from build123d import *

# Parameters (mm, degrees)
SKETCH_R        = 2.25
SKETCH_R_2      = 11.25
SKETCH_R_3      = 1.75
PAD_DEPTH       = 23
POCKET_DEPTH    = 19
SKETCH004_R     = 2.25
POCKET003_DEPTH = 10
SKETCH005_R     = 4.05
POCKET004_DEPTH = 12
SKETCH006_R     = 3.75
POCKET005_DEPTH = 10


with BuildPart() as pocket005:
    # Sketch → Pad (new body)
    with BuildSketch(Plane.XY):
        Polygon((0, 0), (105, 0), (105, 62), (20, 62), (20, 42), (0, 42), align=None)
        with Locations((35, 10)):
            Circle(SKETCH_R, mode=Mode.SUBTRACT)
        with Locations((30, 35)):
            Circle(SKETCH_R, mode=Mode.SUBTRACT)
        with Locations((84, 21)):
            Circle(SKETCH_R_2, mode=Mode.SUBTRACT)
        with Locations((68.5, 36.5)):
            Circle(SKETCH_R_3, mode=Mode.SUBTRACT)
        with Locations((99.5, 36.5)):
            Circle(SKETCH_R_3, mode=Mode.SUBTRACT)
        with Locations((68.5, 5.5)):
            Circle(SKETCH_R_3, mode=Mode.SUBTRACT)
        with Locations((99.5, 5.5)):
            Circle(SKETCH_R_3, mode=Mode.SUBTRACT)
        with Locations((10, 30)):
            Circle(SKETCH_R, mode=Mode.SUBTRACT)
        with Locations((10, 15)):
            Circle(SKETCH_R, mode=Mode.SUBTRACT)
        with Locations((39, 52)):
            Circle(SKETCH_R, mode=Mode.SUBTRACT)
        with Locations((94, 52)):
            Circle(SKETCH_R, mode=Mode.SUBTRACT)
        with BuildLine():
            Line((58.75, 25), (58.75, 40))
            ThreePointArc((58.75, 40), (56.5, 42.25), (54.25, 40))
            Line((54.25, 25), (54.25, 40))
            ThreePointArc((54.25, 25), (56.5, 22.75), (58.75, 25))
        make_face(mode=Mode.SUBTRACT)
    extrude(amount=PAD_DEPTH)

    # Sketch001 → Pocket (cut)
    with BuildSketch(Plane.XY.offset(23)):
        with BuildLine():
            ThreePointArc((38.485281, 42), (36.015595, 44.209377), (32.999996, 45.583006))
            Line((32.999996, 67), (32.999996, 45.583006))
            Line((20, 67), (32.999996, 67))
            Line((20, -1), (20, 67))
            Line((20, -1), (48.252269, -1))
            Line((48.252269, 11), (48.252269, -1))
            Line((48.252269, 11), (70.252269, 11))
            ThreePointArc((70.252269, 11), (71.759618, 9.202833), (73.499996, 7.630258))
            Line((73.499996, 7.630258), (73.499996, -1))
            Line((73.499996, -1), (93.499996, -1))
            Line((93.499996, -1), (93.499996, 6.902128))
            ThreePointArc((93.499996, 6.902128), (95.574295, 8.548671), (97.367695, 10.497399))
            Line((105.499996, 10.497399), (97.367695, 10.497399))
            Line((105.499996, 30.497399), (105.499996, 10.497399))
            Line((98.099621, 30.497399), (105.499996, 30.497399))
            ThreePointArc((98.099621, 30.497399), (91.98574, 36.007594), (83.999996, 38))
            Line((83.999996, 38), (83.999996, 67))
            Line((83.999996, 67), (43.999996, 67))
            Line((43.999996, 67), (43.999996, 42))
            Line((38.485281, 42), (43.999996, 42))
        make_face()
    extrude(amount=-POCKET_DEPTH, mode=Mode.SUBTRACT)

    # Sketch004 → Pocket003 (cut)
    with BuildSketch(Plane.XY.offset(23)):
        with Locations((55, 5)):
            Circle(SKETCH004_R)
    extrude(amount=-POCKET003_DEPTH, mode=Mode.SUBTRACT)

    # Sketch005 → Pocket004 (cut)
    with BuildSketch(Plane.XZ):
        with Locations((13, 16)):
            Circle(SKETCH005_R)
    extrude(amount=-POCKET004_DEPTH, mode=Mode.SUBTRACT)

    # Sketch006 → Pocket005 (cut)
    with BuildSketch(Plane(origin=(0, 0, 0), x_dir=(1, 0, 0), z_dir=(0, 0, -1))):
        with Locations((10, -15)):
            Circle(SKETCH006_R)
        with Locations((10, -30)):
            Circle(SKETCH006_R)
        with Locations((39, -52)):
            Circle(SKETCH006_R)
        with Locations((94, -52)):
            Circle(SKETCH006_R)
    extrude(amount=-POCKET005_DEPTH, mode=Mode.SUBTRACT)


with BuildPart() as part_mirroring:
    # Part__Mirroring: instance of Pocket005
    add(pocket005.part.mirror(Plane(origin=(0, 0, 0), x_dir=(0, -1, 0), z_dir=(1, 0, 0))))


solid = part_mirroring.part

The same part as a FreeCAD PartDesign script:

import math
import FreeCAD as App
import Part
import Sketcher

V = App.Vector


def add_polygon(sketch, points):
    """Adds a closed chain of lines whose ends are joined by coincident constraints."""
    first, n = sketch.GeometryCount, len(points)
    for a, b in zip(points, points[1:] + points[:1]):
        sketch.addGeometry(Part.LineSegment(App.Vector(*a, 0), App.Vector(*b, 0)), False)
    for i in range(n):
        sketch.addConstraint(Sketcher.Constraint("Coincident", first + i, 2, first + (i + 1) % n, 1))

doc = App.newDocument("Part")
params = doc.addObject("Spreadsheet::Sheet", "Params")
for row, (alias, value) in enumerate([
    ("sketch1_diameter", "4.5 mm"),
    ("sketch1_diameter2", "3.5 mm"),
    ("sketch1_diameter3", "22.5 mm"),
    ("sketch1_width", "105 mm"),
    ("sketch1_width2", "85 mm"),
    ("pad1_length", "23 mm"),
    ("sketch2_width", "22 mm"),
    ("sketch2_width2", "20 mm"),
    ("sketch2_width3", "40 mm"),
    ("sketch2_height", "68 mm"),
    ("sketch2_height2", "12 mm"),
    ("pocket1_length", "19 mm"),
    ("sketch3_diameter", "4.5 mm"),
    ("pocket2_length", "10 mm"),
    ("sketch4_diameter", "8.1 mm"),
    ("pocket3_length", "12 mm"),
    ("sketch5_diameter", "7.5 mm"),
    ("pocket4_length", "10 mm"),
], start=1):
    params.set(f"A{row}", alias)
    params.set(f"B{row}", "=" + value)
    params.setAlias(f"B{row}", alias)

body = doc.addObject("PartDesign::Body", "Body")

# Sketch on XY plane
sketch1 = body.newObject("Sketcher::SketchObject", "Sketch")
sketch1.AttachmentSupport = (doc.getObject("XY_Plane"), [""])
sketch1.MapMode = "FlatFace"
add_polygon(sketch1, [(0, 0), (105, 0), (105, 62), (20, 62), (20, 42), (0, 42)])  # lines 0-5
sketch1.addGeometry(Part.Circle(V(10, 15, 0), V(0, 0, 1), 2.2), False)  # 6
sketch1.addGeometry(Part.Circle(V(35, 10, 0), V(0, 0, 1), 2.2), False)  # 7
sketch1.addGeometry(Part.Circle(V(68.5, 5.5, 0), V(0, 0, 1), 1.8), False)  # 8
sketch1.addGeometry(Part.Circle(V(99.5, 5.5, 0), V(0, 0, 1), 1.8), False)  # 9
sketch1.addGeometry(Part.Circle(V(84, 21, 0), V(0, 0, 1), 11.2), False)  # 10
sketch1.addGeometry(Part.Circle(V(10, 30, 0), V(0, 0, 1), 2.2), False)  # 11
sketch1.addGeometry(Part.Circle(V(30, 35, 0), V(0, 0, 1), 2.2), False)  # 12
sketch1.addGeometry(Part.Circle(V(39, 52, 0), V(0, 0, 1), 2.2), False)  # 13
sketch1.addGeometry(Part.LineSegment(V(58.8, 40, 0), V(58.8, 25, 0)), False)  # 14
sketch1.addGeometry(Part.ArcOfCircle(Part.Circle(V(56.5, 25, 0), V(0, 0, 1), 2.2), math.radians(180), math.radians(360)), False)  # 15
sketch1.addGeometry(Part.LineSegment(V(54.2, 25, 0), V(54.2, 40, 0)), False)  # 16
sketch1.addGeometry(Part.ArcOfCircle(Part.Circle(V(56.5, 40, 0), V(0, 0, 1), 2.2), math.radians(0), math.radians(180)), False)  # 17
sketch1.addGeometry(Part.Circle(V(68.5, 36.5, 0), V(0, 0, 1), 1.8), False)  # 18
sketch1.addGeometry(Part.Circle(V(99.5, 36.5, 0), V(0, 0, 1), 1.8), False)  # 19
sketch1.addGeometry(Part.Circle(V(94, 52, 0), V(0, 0, 1), 2.2), False)  # 20
sketch1.addConstraint(Sketcher.Constraint("Tangent", 14, 2, 15, 2))
sketch1.addConstraint(Sketcher.Constraint("Tangent", 15, 1, 16, 1))
sketch1.addConstraint(Sketcher.Constraint("Tangent", 16, 2, 17, 2))
sketch1.addConstraint(Sketcher.Constraint("Tangent", 17, 1, 14, 1))
sketch1.addConstraint(Sketcher.Constraint("Horizontal", 0))
sketch1.addConstraint(Sketcher.Constraint("Vertical", 1))
sketch1.addConstraint(Sketcher.Constraint("Horizontal", 2))
sketch1.addConstraint(Sketcher.Constraint("Vertical", 3))
sketch1.addConstraint(Sketcher.Constraint("Horizontal", 4))
sketch1.addConstraint(Sketcher.Constraint("Vertical", 5))
sketch1.addConstraint(Sketcher.Constraint("Vertical", 14))
sketch1.addConstraint(Sketcher.Constraint("Vertical", 16))
sketch1.addConstraint(Sketcher.Constraint("Coincident", 5, 2, -1, 1))
sketch1.addConstraint(Sketcher.Constraint("Equal", 6, 7))
sketch1.addConstraint(Sketcher.Constraint("Equal", 8, 9))
sketch1.addConstraint(Sketcher.Constraint("Equal", 7, 11))
sketch1.addConstraint(Sketcher.Constraint("Equal", 11, 12))
sketch1.addConstraint(Sketcher.Constraint("Equal", 12, 13))
sketch1.addConstraint(Sketcher.Constraint("Equal", 13, 15))
sketch1.addConstraint(Sketcher.Constraint("Equal", 9, 18))
sketch1.addConstraint(Sketcher.Constraint("Equal", 18, 19))
sketch1.addConstraint(Sketcher.Constraint("Equal", 17, 20))
sketch1.addConstraint(Sketcher.Constraint("Horizontal", 8, 3, 9, 3))
sketch1.addConstraint(Sketcher.Constraint("Horizontal", 18, 3, 19, 3))
sketch1.addConstraint(Sketcher.Constraint("Horizontal", 13, 3, 20, 3))
sketch1.addConstraint(Sketcher.Constraint("Vertical", 6, 3, 11, 3))
sketch1.addConstraint(Sketcher.Constraint("Vertical", 8, 3, 18, 3))
sketch1.addConstraint(Sketcher.Constraint("Vertical", 9, 3, 19, 3))
sketch1.addConstraint(Sketcher.Constraint("Equal", 4, 3))
sketch1.addConstraint(Sketcher.Constraint("Diameter", 6, 4.5))
sketch1.addConstraint(Sketcher.Constraint("Diameter", 8, 3.5))
sketch1.addConstraint(Sketcher.Constraint("Diameter", 10, 22.5))
sketch1.addConstraint(Sketcher.Constraint("DistanceX", 0, 1, 0, 2, 105.0))
sketch1.addConstraint(Sketcher.Constraint("DistanceX", 2, 2, 2, 1, 85.0))
sketch1.addConstraint(Sketcher.Constraint("DistanceY", 1, 1, 1, 2, 62.0))
sketch1.addConstraint(Sketcher.Constraint("DistanceY", 14, 2, 14, 1, 15.0))
sketch1.addConstraint(Sketcher.Constraint("DistanceX", -1, 1, 6, 3, 10.0))
sketch1.addConstraint(Sketcher.Constraint("DistanceY", -1, 1, 6, 3, 15.0))
sketch1.addConstraint(Sketcher.Constraint("DistanceX", -1, 1, 7, 3, 35.0))
sketch1.addConstraint(Sketcher.Constraint("DistanceY", -1, 1, 7, 3, 10.0))
sketch1.addConstraint(Sketcher.Constraint("DistanceX", -1, 1, 10, 3, 84.0))
sketch1.addConstraint(Sketcher.Constraint("DistanceY", -1, 1, 10, 3, 21.0))
sketch1.addConstraint(Sketcher.Constraint("DistanceY", -1, 1, 11, 3, 30.0))
sketch1.addConstraint(Sketcher.Constraint("DistanceX", -1, 1, 12, 3, 30.0))
sketch1.addConstraint(Sketcher.Constraint("DistanceY", -1, 1, 12, 3, 35.0))
sketch1.addConstraint(Sketcher.Constraint("DistanceX", -1, 1, 13, 3, 39.0))
sketch1.addConstraint(Sketcher.Constraint("DistanceY", -1, 1, 13, 3, 52.0))
sketch1.addConstraint(Sketcher.Constraint("DistanceY", -1, 1, 15, 3, 25.0))
sketch1.addConstraint(Sketcher.Constraint("DistanceX", -1, 1, 20, 3, 94.0))
sketch1.addConstraint(Sketcher.Constraint("DistanceX", 8, 3, 9, 3, 31.0))
sketch1.addConstraint(Sketcher.Constraint("DistanceX", 15, 3, 8, 3, 12.0))
sketch1.addConstraint(Sketcher.Constraint("DistanceY", 8, 3, 18, 3, 31.0))
sketch1.addConstraint(Sketcher.Constraint("DistanceX", -1, 1, 8, 3, 68.5))
sketch1.addConstraint(Sketcher.Constraint("DistanceY", -1, 1, 8, 3, 5.5))
sketch1.setExpression("Constraints[35]", "Params.sketch1_diameter")
sketch1.setExpression("Constraints[36]", "Params.sketch1_diameter2")
sketch1.setExpression("Constraints[37]", "Params.sketch1_diameter3")
sketch1.setExpression("Constraints[38]", "Params.sketch1_width")
sketch1.setExpression("Constraints[39]", "Params.sketch1_width2")
pad1 = body.newObject("PartDesign::Pad", "Pad")
pad1.Profile = sketch1
pad1.setExpression("Length", "Params.pad1_length")

# Sketch on XY plane
sketch2 = body.newObject("Sketcher::SketchObject", "Sketch001")
sketch2.AttachmentSupport = (doc.getObject("XY_Plane"), [""])
sketch2.MapMode = "FlatFace"
sketch2.AttachmentOffset = App.Placement(V(0, 0, 23), App.Rotation())
sketch2.addGeometry(Part.ArcOfCircle(Part.Circle(V(30, 35, 0), V(0, 0, 1), 11), math.radians(40), math.radians(74)), False)
sketch2.addGeometry(Part.LineSegment(V(33, 45.6, 0), V(33, 67, 0)), False)
sketch2.addGeometry(Part.LineSegment(V(33, 67, 0), V(20, 67, 0)), False)
sketch2.addGeometry(Part.LineSegment(V(20, 67, 0), V(20, -1, 0)), False)
sketch2.addGeometry(Part.LineSegment(V(20, -1, 0), V(48.3, -1, 0)), False)
sketch2.addGeometry(Part.LineSegment(V(48.3, -1, 0), V(48.3, 11, 0)), False)
sketch2.addGeometry(Part.LineSegment(V(48.3, 11, 0), V(70.3, 11, 0)), False)
sketch2.addGeometry(Part.ArcOfCircle(Part.Circle(V(84, 21, 0), V(0, 0, 1), 17), math.radians(-143.97), math.radians(-128.14)), False)
sketch2.addGeometry(Part.LineSegment(V(73.5, 7.6, 0), V(73.5, -1, 0)), False)
sketch2.addGeometry(Part.LineSegment(V(73.5, -1, 0), V(93.5, -1, 0)), False)
sketch2.addGeometry(Part.LineSegment(V(93.5, -1, 0), V(93.5, 6.9, 0)), False)
sketch2.addGeometry(Part.ArcOfCircle(Part.Circle(V(84, 21, 0), V(0, 0, 1), 17), math.radians(-56.03), math.radians(-38.16)), False)
sketch2.addGeometry(Part.LineSegment(V(97.4, 10.5, 0), V(105.5, 10.5, 0)), False)
sketch2.addGeometry(Part.LineSegment(V(105.5, 10.5, 0), V(105.5, 30.5, 0)), False)
sketch2.addGeometry(Part.LineSegment(V(105.5, 30.5, 0), V(98.1, 30.5, 0)), False)
sketch2.addGeometry(Part.ArcOfCircle(Part.Circle(V(84, 21, 0), V(0, 0, 1), 17), math.radians(34), math.radians(90)), False)
sketch2.addGeometry(Part.LineSegment(V(84, 38, 0), V(84, 67, 0)), False)
sketch2.addGeometry(Part.LineSegment(V(84, 67, 0), V(44, 67, 0)), False)
sketch2.addGeometry(Part.LineSegment(V(44, 67, 0), V(44, 42, 0)), False)
sketch2.addGeometry(Part.LineSegment(V(44, 42, 0), V(38.5, 42, 0)), False)
sketch2.addConstraint(Sketcher.Constraint("Coincident", 0, 2, 1, 1))
sketch2.addConstraint(Sketcher.Constraint("Coincident", 1, 2, 2, 1))
sketch2.addConstraint(Sketcher.Constraint("Coincident", 2, 2, 3, 1))
sketch2.addConstraint(Sketcher.Constraint("Coincident", 3, 2, 4, 1))
sketch2.addConstraint(Sketcher.Constraint("Coincident", 4, 2, 5, 1))
sketch2.addConstraint(Sketcher.Constraint("Coincident", 5, 2, 6, 1))
sketch2.addConstraint(Sketcher.Constraint("Coincident", 6, 2, 7, 1))
sketch2.addConstraint(Sketcher.Constraint("Coincident", 7, 2, 8, 1))
sketch2.addConstraint(Sketcher.Constraint("Coincident", 8, 2, 9, 1))
sketch2.addConstraint(Sketcher.Constraint("Coincident", 9, 2, 10, 1))
sketch2.addConstraint(Sketcher.Constraint("Coincident", 10, 2, 11, 1))
sketch2.addConstraint(Sketcher.Constraint("Coincident", 11, 2, 12, 1))
sketch2.addConstraint(Sketcher.Constraint("Coincident", 12, 2, 13, 1))
sketch2.addConstraint(Sketcher.Constraint("Coincident", 13, 2, 14, 1))
sketch2.addConstraint(Sketcher.Constraint("Coincident", 14, 2, 15, 1))
sketch2.addConstraint(Sketcher.Constraint("Coincident", 15, 2, 16, 1))
sketch2.addConstraint(Sketcher.Constraint("Coincident", 16, 2, 17, 1))
sketch2.addConstraint(Sketcher.Constraint("Coincident", 17, 2, 18, 1))
sketch2.addConstraint(Sketcher.Constraint("Coincident", 18, 2, 19, 1))
sketch2.addConstraint(Sketcher.Constraint("Coincident", 19, 2, 0, 1))
sketch2.addConstraint(Sketcher.Constraint("Vertical", 1))
sketch2.addConstraint(Sketcher.Constraint("Horizontal", 2))
sketch2.addConstraint(Sketcher.Constraint("Vertical", 3))
sketch2.addConstraint(Sketcher.Constraint("Horizontal", 4))
sketch2.addConstraint(Sketcher.Constraint("Vertical", 5))
sketch2.addConstraint(Sketcher.Constraint("Horizontal", 6))
sketch2.addConstraint(Sketcher.Constraint("Vertical", 8))
sketch2.addConstraint(Sketcher.Constraint("Horizontal", 9))
sketch2.addConstraint(Sketcher.Constraint("Vertical", 10))
sketch2.addConstraint(Sketcher.Constraint("Horizontal", 12))
sketch2.addConstraint(Sketcher.Constraint("Vertical", 13))
sketch2.addConstraint(Sketcher.Constraint("Horizontal", 14))
sketch2.addConstraint(Sketcher.Constraint("Vertical", 16))
sketch2.addConstraint(Sketcher.Constraint("Horizontal", 17))
sketch2.addConstraint(Sketcher.Constraint("Vertical", 18))
sketch2.addConstraint(Sketcher.Constraint("Horizontal", 19))
sketch2.addConstraint(Sketcher.Constraint("Coincident", 15, 3, 7, 3))
sketch2.addConstraint(Sketcher.Constraint("Horizontal", 4, 2, 8, 2))
sketch2.addConstraint(Sketcher.Constraint("Horizontal", 2, 2, 16, 2))
sketch2.addConstraint(Sketcher.Constraint("Equal", 9, 13))
sketch2.addConstraint(Sketcher.Constraint("DistanceX", 6, 1, 6, 2, 22.0))
sketch2.addConstraint(Sketcher.Constraint("DistanceX", 9, 1, 9, 2, 20.0))
sketch2.addConstraint(Sketcher.Constraint("DistanceX", 17, 2, 17, 1, 40.0))
sketch2.addConstraint(Sketcher.Constraint("DistanceY", 3, 2, 3, 1, 68.0))
sketch2.addConstraint(Sketcher.Constraint("DistanceY", 5, 1, 5, 2, 12.0))
sketch2.addConstraint(Sketcher.Constraint("DistanceY", 16, 1, 16, 2, 29.0))
sketch2.addConstraint(Sketcher.Constraint("DistanceY", 18, 2, 18, 1, 25.0))
sketch2.addConstraint(Sketcher.Constraint("DistanceY", -1, 1, 1, 2, 67.0))
sketch2.addConstraint(Sketcher.Constraint("DistanceX", -1, 1, 2, 2, 20.0))
sketch2.addConstraint(Sketcher.Constraint("DistanceX", 10, 2, 12, 2, 12.0))
sketch2.addConstraint(Sketcher.Constraint("DistanceX", 1, 2, 17, 2, 11.0))
sketch2.addConstraint(Sketcher.Constraint("DistanceX", 15, 2, 13, 2, 21.5))
sketch2.addConstraint(Sketcher.Constraint("Radius", 7, 16.99999))
sketch2.addConstraint(Sketcher.Constraint("Radius", 11, 17.00002))
sketch2.addConstraint(Sketcher.Constraint("DistanceX", 12, 1, 12, 2, 8.132301))
sketch2.addConstraint(Sketcher.Constraint("Radius", 0, 10.999985))
sketch2.addConstraint(Sketcher.Constraint("Radius", 15, 17.000005))
sketch2.addConstraint(Sketcher.Constraint("DistanceX", 4, 1, 4, 2, 28.252269))
sketch2.addConstraint(Sketcher.Constraint("DistanceY", 8, 2, 8, 1, 8.630258))
sketch2.addConstraint(Sketcher.Constraint("DistanceY", 10, 1, 10, 2, 7.902128))
sketch2.addConstraint(Sketcher.Constraint("DistanceY", -1, 1, 11, 2, 10.497399))
sketch2.addConstraint(Sketcher.Constraint("DistanceX", 19, 2, 19, 1, 5.514715))
sketch2.addConstraint(Sketcher.Constraint("DistanceY", 1, 1, 1, 2, 21.416994))
sketch2.setExpression("Constraints[40]", "Params.sketch2_width")
sketch2.setExpression("Constraints[41]", "Params.sketch2_width2")
sketch2.setExpression("Constraints[42]", "Params.sketch2_width3")
sketch2.setExpression("Constraints[43]", "Params.sketch2_height")
sketch2.setExpression("Constraints[44]", "Params.sketch2_height2")
pocket1 = body.newObject("PartDesign::Pocket", "Pocket")
pocket1.Profile = sketch2
pocket1.setExpression("Length", "Params.pocket1_length")

# Sketch on XY plane
sketch3 = body.newObject("Sketcher::SketchObject", "Sketch002")
sketch3.AttachmentSupport = (doc.getObject("XY_Plane"), [""])
sketch3.MapMode = "FlatFace"
sketch3.AttachmentOffset = App.Placement(V(0, 0, 23), App.Rotation())
sketch3.addGeometry(Part.Circle(V(55, 5, 0), V(0, 0, 1), 2.2), False)
sketch3.addConstraint(Sketcher.Constraint("Diameter", 0, 4.5))
sketch3.addConstraint(Sketcher.Constraint("DistanceX", -1, 1, 0, 3, 55.0))
sketch3.addConstraint(Sketcher.Constraint("DistanceY", -1, 1, 0, 3, 5.0))
sketch3.setExpression("Constraints[0]", "Params.sketch3_diameter")
pocket2 = body.newObject("PartDesign::Pocket", "Pocket001")
pocket2.Profile = sketch3
pocket2.setExpression("Length", "Params.pocket2_length")

# Sketch on XZ plane
sketch4 = body.newObject("Sketcher::SketchObject", "Sketch003")
sketch4.AttachmentSupport = (doc.getObject("XZ_Plane"), [""])
sketch4.MapMode = "FlatFace"
sketch4.addGeometry(Part.Circle(V(13, 16, 0), V(0, 0, 1), 4), False)
sketch4.addConstraint(Sketcher.Constraint("Diameter", 0, 8.1))
sketch4.addConstraint(Sketcher.Constraint("DistanceX", -1, 1, 0, 3, 13.0))
sketch4.addConstraint(Sketcher.Constraint("DistanceY", -1, 1, 0, 3, 16.0))
sketch4.setExpression("Constraints[0]", "Params.sketch4_diameter")
pocket3 = body.newObject("PartDesign::Pocket", "Pocket002")
pocket3.Profile = sketch4
pocket3.setExpression("Length", "Params.pocket3_length")

# Sketch on XY plane
sketch5 = body.newObject("Sketcher::SketchObject", "Sketch004")
sketch5.AttachmentSupport = (doc.getObject("XY_Plane"), [""])
sketch5.MapMode = "FlatFace"
sketch5.addGeometry(Part.Circle(V(10, 15, 0), V(0, 0, 1), 3.8), False)
sketch5.addGeometry(Part.Circle(V(10, 30, 0), V(0, 0, 1), 3.8), False)
sketch5.addGeometry(Part.Circle(V(39, 52, 0), V(0, 0, 1), 3.8), False)
sketch5.addGeometry(Part.Circle(V(94, 52, 0), V(0, 0, 1), 3.8), False)
sketch5.addConstraint(Sketcher.Constraint("Equal", 0, 1))
sketch5.addConstraint(Sketcher.Constraint("Equal", 1, 2))
sketch5.addConstraint(Sketcher.Constraint("Equal", 2, 3))
sketch5.addConstraint(Sketcher.Constraint("Horizontal", 2, 3, 3, 3))
sketch5.addConstraint(Sketcher.Constraint("Vertical", 0, 3, 1, 3))
sketch5.addConstraint(Sketcher.Constraint("Diameter", 0, 7.5))
sketch5.addConstraint(Sketcher.Constraint("DistanceX", -1, 1, 0, 3, 10.0))
sketch5.addConstraint(Sketcher.Constraint("DistanceY", -1, 1, 0, 3, 15.0))
sketch5.addConstraint(Sketcher.Constraint("DistanceY", -1, 1, 1, 3, 30.0))
sketch5.addConstraint(Sketcher.Constraint("DistanceX", -1, 1, 2, 3, 39.0))
sketch5.addConstraint(Sketcher.Constraint("DistanceY", -1, 1, 2, 3, 52.0))
sketch5.addConstraint(Sketcher.Constraint("DistanceX", -1, 1, 3, 3, 94.0))
sketch5.setExpression("Constraints[5]", "Params.sketch5_diameter")
pocket4 = body.newObject("PartDesign::Pocket", "Pocket003")
pocket4.Profile = sketch5
pocket4.setExpression("Length", "Params.pocket4_length")
pocket4.Reversed = True
body2 = doc.addObject("PartDesign::Body", "Body001")
doc.recompute()

mirroring = doc.addObject("Part::Mirroring", "Mirroring")
mirroring.Source = body
mirroring.Base = V(0, 0, 0)
mirroring.Normal = V(1, 0, 0)
body2.BaseFeature = mirroring
doc.recompute()
body.Visibility = False
mirroring.Visibility = False

doc.recompute()
